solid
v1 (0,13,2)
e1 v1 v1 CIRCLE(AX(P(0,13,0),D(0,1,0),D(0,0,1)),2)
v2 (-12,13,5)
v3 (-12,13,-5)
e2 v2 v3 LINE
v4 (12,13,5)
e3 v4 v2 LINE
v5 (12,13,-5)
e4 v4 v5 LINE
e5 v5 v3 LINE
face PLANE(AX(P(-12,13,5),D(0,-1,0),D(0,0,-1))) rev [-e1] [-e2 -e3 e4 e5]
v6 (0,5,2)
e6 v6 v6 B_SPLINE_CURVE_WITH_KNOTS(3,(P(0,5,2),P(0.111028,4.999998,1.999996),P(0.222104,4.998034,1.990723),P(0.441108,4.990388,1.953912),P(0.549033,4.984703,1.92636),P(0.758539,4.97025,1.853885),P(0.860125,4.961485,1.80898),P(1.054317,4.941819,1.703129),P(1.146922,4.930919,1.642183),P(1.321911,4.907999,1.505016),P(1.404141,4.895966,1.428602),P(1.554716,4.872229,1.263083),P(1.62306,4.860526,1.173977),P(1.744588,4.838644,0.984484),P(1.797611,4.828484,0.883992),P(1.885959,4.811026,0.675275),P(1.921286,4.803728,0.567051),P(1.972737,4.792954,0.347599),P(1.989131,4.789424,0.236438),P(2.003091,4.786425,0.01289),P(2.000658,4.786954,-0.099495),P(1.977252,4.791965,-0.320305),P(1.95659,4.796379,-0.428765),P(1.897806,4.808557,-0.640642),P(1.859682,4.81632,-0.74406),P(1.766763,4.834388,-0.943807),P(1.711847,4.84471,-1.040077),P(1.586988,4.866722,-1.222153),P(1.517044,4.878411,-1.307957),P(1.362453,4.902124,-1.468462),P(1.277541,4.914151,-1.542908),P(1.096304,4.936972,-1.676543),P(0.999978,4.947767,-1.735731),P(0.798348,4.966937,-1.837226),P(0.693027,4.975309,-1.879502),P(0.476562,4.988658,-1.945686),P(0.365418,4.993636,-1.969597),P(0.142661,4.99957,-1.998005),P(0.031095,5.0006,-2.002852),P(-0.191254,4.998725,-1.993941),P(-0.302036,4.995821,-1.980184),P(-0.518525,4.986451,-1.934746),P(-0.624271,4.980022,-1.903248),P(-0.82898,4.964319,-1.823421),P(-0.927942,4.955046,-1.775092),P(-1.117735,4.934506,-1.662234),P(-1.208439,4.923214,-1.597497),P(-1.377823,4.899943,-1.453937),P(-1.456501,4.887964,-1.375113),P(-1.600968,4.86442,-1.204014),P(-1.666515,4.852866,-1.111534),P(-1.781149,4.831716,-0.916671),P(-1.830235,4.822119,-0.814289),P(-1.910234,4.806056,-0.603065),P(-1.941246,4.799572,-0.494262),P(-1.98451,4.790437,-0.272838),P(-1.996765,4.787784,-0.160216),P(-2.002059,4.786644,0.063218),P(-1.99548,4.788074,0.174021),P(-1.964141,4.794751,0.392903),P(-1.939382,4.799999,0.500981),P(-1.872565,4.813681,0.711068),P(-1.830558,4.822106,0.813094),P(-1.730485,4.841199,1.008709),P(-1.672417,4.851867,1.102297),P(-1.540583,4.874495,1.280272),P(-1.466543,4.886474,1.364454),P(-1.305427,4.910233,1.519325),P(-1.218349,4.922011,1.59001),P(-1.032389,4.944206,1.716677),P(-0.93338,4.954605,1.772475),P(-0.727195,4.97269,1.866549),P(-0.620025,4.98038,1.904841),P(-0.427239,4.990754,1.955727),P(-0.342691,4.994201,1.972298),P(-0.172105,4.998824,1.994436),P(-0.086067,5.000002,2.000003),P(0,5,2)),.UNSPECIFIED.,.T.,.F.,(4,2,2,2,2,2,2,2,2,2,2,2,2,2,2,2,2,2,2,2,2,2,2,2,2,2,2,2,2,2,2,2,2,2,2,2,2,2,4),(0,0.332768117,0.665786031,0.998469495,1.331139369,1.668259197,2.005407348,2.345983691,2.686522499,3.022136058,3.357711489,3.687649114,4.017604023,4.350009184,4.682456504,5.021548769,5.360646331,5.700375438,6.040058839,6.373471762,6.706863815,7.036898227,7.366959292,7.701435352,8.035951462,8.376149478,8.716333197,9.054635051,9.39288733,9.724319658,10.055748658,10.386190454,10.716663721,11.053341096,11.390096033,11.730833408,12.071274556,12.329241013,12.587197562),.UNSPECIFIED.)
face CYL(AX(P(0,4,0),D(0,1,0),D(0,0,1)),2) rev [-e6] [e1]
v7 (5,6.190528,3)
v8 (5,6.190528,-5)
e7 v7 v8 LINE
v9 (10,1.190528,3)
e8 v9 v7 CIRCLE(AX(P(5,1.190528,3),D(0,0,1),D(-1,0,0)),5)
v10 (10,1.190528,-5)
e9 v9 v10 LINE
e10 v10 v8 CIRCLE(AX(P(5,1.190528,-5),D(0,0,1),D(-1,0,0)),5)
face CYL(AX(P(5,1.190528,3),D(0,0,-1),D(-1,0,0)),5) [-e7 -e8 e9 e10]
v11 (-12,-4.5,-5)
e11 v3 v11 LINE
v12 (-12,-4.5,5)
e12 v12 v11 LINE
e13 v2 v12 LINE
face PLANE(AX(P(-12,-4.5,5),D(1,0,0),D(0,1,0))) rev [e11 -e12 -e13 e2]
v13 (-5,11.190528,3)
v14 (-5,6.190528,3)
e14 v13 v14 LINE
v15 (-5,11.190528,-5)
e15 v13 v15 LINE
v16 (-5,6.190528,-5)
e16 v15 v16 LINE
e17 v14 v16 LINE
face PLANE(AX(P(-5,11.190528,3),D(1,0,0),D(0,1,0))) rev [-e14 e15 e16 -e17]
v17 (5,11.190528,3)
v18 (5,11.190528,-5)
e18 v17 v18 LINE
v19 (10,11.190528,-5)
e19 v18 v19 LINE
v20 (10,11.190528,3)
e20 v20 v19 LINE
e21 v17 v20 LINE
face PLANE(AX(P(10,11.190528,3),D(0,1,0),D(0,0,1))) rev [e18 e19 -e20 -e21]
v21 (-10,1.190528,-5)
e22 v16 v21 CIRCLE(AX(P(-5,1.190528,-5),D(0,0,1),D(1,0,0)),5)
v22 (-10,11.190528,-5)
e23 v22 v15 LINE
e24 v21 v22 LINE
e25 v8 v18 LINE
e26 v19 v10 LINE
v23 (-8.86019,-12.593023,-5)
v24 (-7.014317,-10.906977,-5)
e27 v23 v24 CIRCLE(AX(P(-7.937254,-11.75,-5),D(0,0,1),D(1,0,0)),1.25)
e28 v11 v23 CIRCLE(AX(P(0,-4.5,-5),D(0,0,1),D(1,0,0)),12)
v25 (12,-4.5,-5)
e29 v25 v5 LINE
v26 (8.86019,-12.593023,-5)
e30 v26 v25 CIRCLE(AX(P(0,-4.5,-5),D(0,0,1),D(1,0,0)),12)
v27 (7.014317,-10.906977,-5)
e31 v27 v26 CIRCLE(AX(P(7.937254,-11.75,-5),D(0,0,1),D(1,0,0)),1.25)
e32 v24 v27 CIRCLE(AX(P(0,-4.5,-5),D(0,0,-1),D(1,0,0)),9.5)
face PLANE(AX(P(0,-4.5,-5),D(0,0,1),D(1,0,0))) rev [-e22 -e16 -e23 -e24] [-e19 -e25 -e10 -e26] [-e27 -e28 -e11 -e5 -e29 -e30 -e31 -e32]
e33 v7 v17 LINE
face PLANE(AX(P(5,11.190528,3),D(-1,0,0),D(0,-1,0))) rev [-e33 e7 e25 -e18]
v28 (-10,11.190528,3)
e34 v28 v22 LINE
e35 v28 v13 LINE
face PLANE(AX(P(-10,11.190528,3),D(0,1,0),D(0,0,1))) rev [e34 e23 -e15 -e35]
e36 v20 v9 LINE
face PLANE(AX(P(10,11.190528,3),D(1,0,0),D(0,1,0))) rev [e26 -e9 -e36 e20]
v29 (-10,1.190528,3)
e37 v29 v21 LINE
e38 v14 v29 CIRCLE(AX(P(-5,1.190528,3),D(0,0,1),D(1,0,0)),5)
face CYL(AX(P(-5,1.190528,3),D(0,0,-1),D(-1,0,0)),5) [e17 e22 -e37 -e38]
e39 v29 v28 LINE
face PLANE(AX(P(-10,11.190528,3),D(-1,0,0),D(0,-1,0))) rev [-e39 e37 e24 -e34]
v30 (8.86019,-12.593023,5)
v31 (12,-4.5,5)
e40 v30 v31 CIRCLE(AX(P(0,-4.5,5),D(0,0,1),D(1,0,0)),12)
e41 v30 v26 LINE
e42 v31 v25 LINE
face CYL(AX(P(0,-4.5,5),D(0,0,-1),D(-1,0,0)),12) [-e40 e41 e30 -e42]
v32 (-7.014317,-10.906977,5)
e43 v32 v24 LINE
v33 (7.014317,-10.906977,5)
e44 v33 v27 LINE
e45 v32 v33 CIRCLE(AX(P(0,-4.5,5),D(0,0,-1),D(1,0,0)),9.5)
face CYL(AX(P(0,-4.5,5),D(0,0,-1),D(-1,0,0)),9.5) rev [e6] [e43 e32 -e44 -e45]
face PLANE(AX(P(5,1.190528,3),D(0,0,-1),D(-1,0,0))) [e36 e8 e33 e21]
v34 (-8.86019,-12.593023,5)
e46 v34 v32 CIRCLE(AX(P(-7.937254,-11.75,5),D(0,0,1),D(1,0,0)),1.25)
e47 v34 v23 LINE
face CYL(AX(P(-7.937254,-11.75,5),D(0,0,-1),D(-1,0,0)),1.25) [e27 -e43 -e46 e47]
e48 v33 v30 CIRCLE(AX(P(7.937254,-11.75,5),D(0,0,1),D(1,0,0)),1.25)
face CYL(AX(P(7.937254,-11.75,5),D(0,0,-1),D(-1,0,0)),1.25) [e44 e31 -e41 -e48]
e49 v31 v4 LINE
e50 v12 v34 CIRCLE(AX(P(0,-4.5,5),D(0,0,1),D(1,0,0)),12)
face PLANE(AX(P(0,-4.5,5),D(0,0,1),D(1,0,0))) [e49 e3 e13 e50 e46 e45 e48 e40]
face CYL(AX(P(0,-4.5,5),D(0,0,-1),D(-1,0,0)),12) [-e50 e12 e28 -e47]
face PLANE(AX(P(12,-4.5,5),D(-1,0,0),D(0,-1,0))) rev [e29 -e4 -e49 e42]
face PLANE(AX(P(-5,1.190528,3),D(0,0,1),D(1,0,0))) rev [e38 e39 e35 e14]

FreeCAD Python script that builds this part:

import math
import FreeCAD as App
import Part
import Sketcher

V = App.Vector

doc = App.newDocument("Part")
params = doc.addObject("Spreadsheet::Sheet", "Params")
for row, (alias, value) in enumerate([
    ("sketch1_radius", "12 mm"),
    ("sketch1_radius2", "9.5 mm"),
    ("sketch1_height", "17.5 mm"),
    ("pad1_length", "10 mm"),
    ("sketch2_diameter", "4 mm"),
    ("pocket1_length", "9 mm"),
    ("sketch3_radius", "5 mm"),
    ("pocket2_length", "8 mm"),
], start=1):
    params.set(f"A{row}", alias)
    params.set(f"B{row}", "=" + value)
    params.setAlias(f"B{row}", alias)

body = doc.addObject("PartDesign::Body", "Body")

# Sketch on XY plane
sketch1 = doc.addObject("Sketcher::SketchObject", "Sketch")
body.addObject(sketch1)
sketch1.AttachmentSupport = (doc.XY_Plane, [""])
sketch1.MapMode = "FlatFace"
sketch1.addGeometry([
    Part.LineSegment(V(-12, 13, 0), V(-12, -4.5, 0)),  # 0
    Part.ArcOfCircle(Part.Circle(V(0, -4.5, 0), V(0, 0, 1), 12), math.radians(180), math.radians(222)),  # 1
    Part.ArcOfCircle(Part.Circle(V(-7.9, -11.8, 0), V(0, 0, 1), 1.2), math.radians(-138), math.radians(42)),  # 2
    Part.ArcOfCircle(Part.Circle(V(0, -4.5, 0), V(0, 0, 1), 9.5), math.radians(-42), math.radians(222)),  # 3
    Part.ArcOfCircle(Part.Circle(V(7.9, -11.8, 0), V(0, 0, 1), 1.2), math.radians(138), math.radians(318)),  # 4
    Part.ArcOfCircle(Part.Circle(V(0, -4.5, 0), V(0, 0, 1), 12), math.radians(-42), math.radians(0)),  # 5
    Part.LineSegment(V(12, -4.5, 0), V(12, 13, 0)),  # 6
    Part.LineSegment(V(12, 13, 0), V(-12, 13, 0)),  # 7
], False)
sketch1.addConstraint([
    Sketcher.Constraint("Tangent", 0, 2, 1, 1),
    Sketcher.Constraint("Tangent", 1, 2, 2, 1),
    Sketcher.Constraint("Tangent", 2, 2, 3, 2),
    Sketcher.Constraint("Tangent", 3, 1, 4, 1),
    Sketcher.Constraint("Tangent", 4, 2, 5, 1),
    Sketcher.Constraint("Tangent", 5, 2, 6, 1),
    Sketcher.Constraint("Coincident", 6, 2, 7, 1),
    Sketcher.Constraint("Coincident", 7, 2, 0, 1),
    Sketcher.Constraint("Vertical", 0),
    Sketcher.Constraint("Vertical", 6),
    Sketcher.Constraint("Horizontal", 7),
    Sketcher.Constraint("Coincident", 3, 3, 1, 3),
    Sketcher.Constraint("Coincident", 5, 3, 1, 3),
    Sketcher.Constraint("Equal", 2, 4),
    Sketcher.Constraint("Symmetric", 2, 3, 4, 3, -2),
    Sketcher.Constraint("Radius", 1, 12.0),
    Sketcher.Constraint("Radius", 3, 9.5),
    Sketcher.Constraint("DistanceY", 0, 2, 0, 1, 17.5),
    Sketcher.Constraint("DistanceY", -1, 1, 6, 2, 13.0),
    Sketcher.Constraint("DistanceY", 2, 3, -1, 1, 11.75),
])
sketch1.setExpression("Constraints[15]", "Params.sketch1_radius")
sketch1.setExpression("Constraints[16]", "Params.sketch1_radius2")
sketch1.setExpression("Constraints[17]", "Params.sketch1_height")
pad1 = doc.addObject("PartDesign::Pad", "Pad")
body.addObject(pad1)
pad1.Profile = sketch1
pad1.setExpression("Length", "Params.pad1_length")
pad1.Midplane = True

# Sketch on XZ plane
sketch2 = doc.addObject("Sketcher::SketchObject", "Sketch001")
body.addObject(sketch2)
sketch2.AttachmentSupport = (doc.XZ_Plane, [""])
sketch2.MapMode = "FlatFace"
sketch2.AttachmentOffset = App.Placement(V(0, 0, -13), App.Rotation())
sketch2.addGeometry(Part.Circle(V(0, 0, 0), V(0, 0, 1), 2), False)
sketch2.addConstraint([
    Sketcher.Constraint("Coincident", 0, 3, -1, 1),
    Sketcher.Constraint("Diameter", 0, 4.0),
])
sketch2.setExpression("Constraints[1]", "Params.sketch2_diameter")
pocket1 = doc.addObject("PartDesign::Pocket", "Pocket")
body.addObject(pocket1)
pocket1.Profile = sketch2
pocket1.setExpression("Length", "Params.pocket1_length")
pocket1.Reversed = True

# Sketch on XY plane
sketch3 = doc.addObject("Sketcher::SketchObject", "Sketch002")
body.addObject(sketch3)
sketch3.AttachmentSupport = (doc.XY_Plane, [""])
sketch3.MapMode = "FlatFace"
sketch3.AttachmentOffset = App.Placement(V(0, 0, -5), App.Rotation())
sketch3.addGeometry([
    Part.LineSegment(V(-10, 1, 0), V(-10, 11, 0)),  # 0
    Part.LineSegment(V(-10, 11, 0), V(-5, 11, 0)),  # 1
    Part.LineSegment(V(-5, 11, 0), V(-5, 6, 0)),  # 2
    Part.ArcOfCircle(Part.Circle(V(-5, 1, 0), V(0, 0, 1), 5), math.radians(90), math.radians(180)),  # 3
    Part.LineSegment(V(10, 11, 0), V(10, 1, 0)),  # 4
    Part.ArcOfCircle(Part.Circle(V(5, 1, 0), V(0, 0, 1), 5), math.radians(0), math.radians(90)),  # 5
    Part.LineSegment(V(5, 6, 0), V(5, 11, 0)),  # 6
    Part.LineSegment(V(5, 11, 0), V(10, 11, 0)),  # 7
], False)
sketch3.addConstraint([
    Sketcher.Constraint("Coincident", 0, 2, 1, 1),
    Sketcher.Constraint("Coincident", 1, 2, 2, 1),
    Sketcher.Constraint("Coincident", 2, 2, 3, 1),
    Sketcher.Constraint("Tangent", 3, 2, 0, 1),
    Sketcher.Constraint("Tangent", 4, 2, 5, 1),
    Sketcher.Constraint("Coincident", 5, 2, 6, 1),
    Sketcher.Constraint("Coincident", 6, 2, 7, 1),
    Sketcher.Constraint("Coincident", 7, 2, 4, 1),
    Sketcher.Constraint("Vertical", 0),
    Sketcher.Constraint("Horizontal", 1),
    Sketcher.Constraint("Vertical", 2),
    Sketcher.Constraint("Vertical", 4),
    Sketcher.Constraint("Vertical", 6),
    Sketcher.Constraint("Horizontal", 7),
    Sketcher.Constraint("Equal", 3, 5),
    Sketcher.Constraint("Symmetric", 3, 3, 5, 3, -2),
    Sketcher.Constraint("Symmetric", 1, 2, 6, 2, -2),
    Sketcher.Constraint("Vertical", 3, 3, 1, 2),
    Sketcher.Constraint("Equal", 7, 2),
    Sketcher.Constraint("Radius", 3, 5.0),
    Sketcher.Constraint("DistanceX", 3, 3, -1, 1, 5.0),
    Sketcher.Constraint("DistanceY", -1, 1, 3, 3, 1.190528),
])
sketch3.setExpression("Constraints[19]", "Params.sketch3_radius")
pocket2 = doc.addObject("PartDesign::Pocket", "Pocket001")
body.addObject(pocket2)
pocket2.Profile = sketch3
pocket2.setExpression("Length", "Params.pocket2_length")
pocket2.Reversed = True

doc.recompute()
